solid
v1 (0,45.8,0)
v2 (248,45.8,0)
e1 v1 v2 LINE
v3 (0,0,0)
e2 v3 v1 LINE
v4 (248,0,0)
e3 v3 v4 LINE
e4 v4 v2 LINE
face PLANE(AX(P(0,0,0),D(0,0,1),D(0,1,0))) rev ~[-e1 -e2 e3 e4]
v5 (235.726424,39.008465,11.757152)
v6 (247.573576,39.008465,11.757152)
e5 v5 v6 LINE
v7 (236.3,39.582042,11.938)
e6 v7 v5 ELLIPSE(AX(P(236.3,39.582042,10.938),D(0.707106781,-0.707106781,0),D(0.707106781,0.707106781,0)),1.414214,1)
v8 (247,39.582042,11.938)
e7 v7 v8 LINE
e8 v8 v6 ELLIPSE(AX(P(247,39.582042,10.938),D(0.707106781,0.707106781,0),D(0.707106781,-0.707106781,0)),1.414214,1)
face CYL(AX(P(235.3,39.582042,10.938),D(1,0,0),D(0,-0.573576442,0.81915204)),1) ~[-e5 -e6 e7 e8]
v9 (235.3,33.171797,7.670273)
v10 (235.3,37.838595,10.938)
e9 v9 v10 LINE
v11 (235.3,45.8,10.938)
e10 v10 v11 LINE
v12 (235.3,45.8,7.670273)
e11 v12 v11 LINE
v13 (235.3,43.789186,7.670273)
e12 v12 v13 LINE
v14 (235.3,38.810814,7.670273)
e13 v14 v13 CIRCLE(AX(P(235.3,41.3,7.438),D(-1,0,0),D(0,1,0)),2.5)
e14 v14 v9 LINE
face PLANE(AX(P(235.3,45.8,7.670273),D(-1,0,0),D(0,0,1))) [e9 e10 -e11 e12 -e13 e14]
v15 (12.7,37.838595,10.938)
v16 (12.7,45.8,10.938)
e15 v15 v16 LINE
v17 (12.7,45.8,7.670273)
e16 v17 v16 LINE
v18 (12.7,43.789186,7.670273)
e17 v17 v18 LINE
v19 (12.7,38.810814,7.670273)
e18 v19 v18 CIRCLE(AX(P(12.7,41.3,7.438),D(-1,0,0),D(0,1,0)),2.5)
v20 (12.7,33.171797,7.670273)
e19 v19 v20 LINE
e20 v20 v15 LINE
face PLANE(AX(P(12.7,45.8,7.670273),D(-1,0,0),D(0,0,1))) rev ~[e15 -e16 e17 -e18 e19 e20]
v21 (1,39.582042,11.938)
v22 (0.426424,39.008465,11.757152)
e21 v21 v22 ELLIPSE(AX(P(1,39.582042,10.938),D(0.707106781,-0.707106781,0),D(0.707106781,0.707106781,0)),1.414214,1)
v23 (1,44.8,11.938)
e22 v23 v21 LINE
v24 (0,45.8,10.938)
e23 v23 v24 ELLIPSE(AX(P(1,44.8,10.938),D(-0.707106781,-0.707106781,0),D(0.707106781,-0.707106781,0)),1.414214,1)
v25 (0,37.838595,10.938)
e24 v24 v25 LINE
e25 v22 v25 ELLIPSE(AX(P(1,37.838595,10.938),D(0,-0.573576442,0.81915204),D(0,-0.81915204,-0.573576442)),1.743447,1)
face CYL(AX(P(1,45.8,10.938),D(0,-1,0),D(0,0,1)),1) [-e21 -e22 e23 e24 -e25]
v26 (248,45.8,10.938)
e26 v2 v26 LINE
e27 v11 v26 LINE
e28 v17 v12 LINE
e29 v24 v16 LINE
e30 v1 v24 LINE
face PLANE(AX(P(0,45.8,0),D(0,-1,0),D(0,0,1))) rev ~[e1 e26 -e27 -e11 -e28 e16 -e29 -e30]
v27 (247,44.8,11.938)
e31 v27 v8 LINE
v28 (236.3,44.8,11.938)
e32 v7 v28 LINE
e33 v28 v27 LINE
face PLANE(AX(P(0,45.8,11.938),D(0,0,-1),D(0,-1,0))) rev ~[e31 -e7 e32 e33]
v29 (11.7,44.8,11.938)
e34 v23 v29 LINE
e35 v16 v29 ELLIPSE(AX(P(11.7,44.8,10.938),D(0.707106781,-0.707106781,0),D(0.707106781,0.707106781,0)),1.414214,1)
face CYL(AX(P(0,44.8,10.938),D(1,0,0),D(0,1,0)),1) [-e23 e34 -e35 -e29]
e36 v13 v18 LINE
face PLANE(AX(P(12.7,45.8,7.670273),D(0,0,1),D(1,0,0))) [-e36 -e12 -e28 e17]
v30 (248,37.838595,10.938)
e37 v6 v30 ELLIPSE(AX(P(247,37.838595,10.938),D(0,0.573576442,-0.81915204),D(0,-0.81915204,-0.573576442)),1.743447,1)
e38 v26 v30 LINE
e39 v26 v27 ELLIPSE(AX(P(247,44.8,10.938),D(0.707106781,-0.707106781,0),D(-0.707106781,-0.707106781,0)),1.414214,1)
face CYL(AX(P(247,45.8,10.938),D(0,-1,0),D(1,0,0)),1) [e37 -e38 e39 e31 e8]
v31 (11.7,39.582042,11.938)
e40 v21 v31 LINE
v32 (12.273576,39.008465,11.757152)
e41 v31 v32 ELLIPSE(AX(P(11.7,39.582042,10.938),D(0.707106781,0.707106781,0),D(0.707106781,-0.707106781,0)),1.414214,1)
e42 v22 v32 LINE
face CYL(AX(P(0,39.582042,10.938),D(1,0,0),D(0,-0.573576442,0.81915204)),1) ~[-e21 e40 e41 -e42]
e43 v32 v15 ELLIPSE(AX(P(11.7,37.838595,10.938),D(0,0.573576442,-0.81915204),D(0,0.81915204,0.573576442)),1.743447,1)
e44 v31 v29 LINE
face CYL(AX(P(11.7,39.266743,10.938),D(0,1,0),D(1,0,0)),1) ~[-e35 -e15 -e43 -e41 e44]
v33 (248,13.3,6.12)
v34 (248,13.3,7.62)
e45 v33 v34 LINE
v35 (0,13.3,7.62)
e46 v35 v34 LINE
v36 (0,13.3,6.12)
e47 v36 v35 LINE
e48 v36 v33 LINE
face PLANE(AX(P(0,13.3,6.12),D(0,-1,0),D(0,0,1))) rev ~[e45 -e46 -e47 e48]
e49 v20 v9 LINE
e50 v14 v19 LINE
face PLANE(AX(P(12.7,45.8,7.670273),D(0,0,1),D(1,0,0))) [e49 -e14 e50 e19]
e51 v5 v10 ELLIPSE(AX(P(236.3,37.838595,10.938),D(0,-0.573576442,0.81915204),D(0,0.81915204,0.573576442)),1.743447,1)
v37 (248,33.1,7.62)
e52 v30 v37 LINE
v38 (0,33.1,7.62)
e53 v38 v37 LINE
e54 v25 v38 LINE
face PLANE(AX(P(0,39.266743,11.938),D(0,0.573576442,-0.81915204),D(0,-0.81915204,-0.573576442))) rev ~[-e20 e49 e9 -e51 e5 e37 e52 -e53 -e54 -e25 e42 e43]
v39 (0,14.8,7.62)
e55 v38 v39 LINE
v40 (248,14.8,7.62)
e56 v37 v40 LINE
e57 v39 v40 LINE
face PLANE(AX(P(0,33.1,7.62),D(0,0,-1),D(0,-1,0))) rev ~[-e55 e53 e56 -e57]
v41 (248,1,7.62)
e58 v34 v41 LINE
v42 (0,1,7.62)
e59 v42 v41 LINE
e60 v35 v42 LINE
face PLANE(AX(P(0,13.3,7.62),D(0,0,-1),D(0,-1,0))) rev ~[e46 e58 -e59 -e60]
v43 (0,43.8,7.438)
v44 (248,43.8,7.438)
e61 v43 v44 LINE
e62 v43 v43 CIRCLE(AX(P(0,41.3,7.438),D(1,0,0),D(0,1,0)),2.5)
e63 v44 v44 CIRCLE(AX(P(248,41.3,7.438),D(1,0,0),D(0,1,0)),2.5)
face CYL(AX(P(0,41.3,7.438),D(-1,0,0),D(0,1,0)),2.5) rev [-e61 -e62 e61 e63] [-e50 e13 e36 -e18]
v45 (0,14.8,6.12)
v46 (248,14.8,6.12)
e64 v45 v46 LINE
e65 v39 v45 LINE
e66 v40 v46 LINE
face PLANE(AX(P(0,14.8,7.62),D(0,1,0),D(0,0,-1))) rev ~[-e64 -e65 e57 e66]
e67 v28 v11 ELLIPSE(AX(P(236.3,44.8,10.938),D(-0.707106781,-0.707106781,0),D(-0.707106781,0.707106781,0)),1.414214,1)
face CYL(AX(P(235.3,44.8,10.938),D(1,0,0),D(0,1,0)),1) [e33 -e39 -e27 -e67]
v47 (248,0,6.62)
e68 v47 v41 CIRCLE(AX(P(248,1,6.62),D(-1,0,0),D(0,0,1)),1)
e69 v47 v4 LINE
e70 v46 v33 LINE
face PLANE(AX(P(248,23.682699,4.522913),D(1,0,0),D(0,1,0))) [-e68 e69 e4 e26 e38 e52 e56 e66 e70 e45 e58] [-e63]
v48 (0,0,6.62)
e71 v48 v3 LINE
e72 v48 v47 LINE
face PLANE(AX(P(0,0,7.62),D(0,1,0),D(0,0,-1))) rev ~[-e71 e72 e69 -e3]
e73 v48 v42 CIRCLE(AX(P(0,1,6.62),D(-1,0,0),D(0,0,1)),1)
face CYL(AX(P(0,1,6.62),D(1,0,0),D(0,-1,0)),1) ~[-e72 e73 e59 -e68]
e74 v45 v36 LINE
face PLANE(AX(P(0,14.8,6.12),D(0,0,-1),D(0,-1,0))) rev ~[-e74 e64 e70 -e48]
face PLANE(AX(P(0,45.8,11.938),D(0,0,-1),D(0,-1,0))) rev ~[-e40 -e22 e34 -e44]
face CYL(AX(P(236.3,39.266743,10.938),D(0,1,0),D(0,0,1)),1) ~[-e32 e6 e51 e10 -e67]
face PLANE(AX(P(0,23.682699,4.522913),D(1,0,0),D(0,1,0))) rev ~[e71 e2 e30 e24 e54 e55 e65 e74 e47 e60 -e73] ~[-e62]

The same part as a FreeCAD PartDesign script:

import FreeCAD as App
import Part
import Sketcher

V = App.Vector
Q = App.Units.Quantity


def edges_at(feature, points):
    """Names of the edges that pass closest to the given points."""
    edges = feature.Shape.Edges
    near = lambda p: min(range(len(edges)), key=lambda i: edges[i].distToShape(Part.Vertex(*p))[0])
    return sorted({f"Edge{near(p) + 1}" for p in points})

doc = App.newDocument("Part")
body = doc.addObject("PartDesign::Body", "Body")

sketch1 = doc.addObject("Sketcher::SketchObject", "Sketch")
body.addObject(sketch1)
sketch1.AttachmentSupport = (doc.YZ_Plane, [""])
sketch1.MapMode = "FlatFace"
sketch1.addGeometry(Part.LineSegment(V(0, 0, 0), V(45.8, 0, 0)), False)
sketch1.addGeometry(Part.LineSegment(V(45.8, 0, 0), V(45.8, 11.9, 0)), False)
sketch1.addGeometry(Part.LineSegment(V(45.8, 11.9, 0), V(39.3, 11.9, 0)), False)
sketch1.addGeometry(Part.LineSegment(V(39.3, 11.9, 0), V(33.1, 7.6, 0)), False)
sketch1.addGeometry(Part.LineSegment(V(33.1, 7.6, 0), V(14.8, 7.6, 0)), False)
sketch1.addGeometry(Part.LineSegment(V(14.8, 7.6, 0), V(14.8, 6.1, 0)), False)
sketch1.addGeometry(Part.LineSegment(V(14.8, 6.1, 0), V(13.3, 6.1, 0)), False)
sketch1.addGeometry(Part.LineSegment(V(13.3, 6.1, 0), V(13.3, 7.6, 0)), False)
sketch1.addGeometry(Part.LineSegment(V(13.3, 7.6, 0), V(0, 7.6, 0)), False)
sketch1.addGeometry(Part.LineSegment(V(0, 7.6, 0), V(0, 0, 0)), False)
sketch1.addGeometry(Part.Circle(V(41.3, 7.4, 0), V(0, 0, 1), 2.5), False)
sketch1.addConstraint(Sketcher.Constraint("Coincident", 0, 2, 1, 1))
sketch1.addConstraint(Sketcher.Constraint("Coincident", 1, 2, 2, 1))
sketch1.addConstraint(Sketcher.Constraint("Coincident", 2, 2, 3, 1))
sketch1.addConstraint(Sketcher.Constraint("Coincident", 3, 2, 4, 1))
sketch1.addConstraint(Sketcher.Constraint("Coincident", 4, 2, 5, 1))
sketch1.addConstraint(Sketcher.Constraint("Coincident", 5, 2, 6, 1))
sketch1.addConstraint(Sketcher.Constraint("Coincident", 6, 2, 7, 1))
sketch1.addConstraint(Sketcher.Constraint("Coincident", 7, 2, 8, 1))
sketch1.addConstraint(Sketcher.Constraint("Coincident", 8, 2, 9, 1))
sketch1.addConstraint(Sketcher.Constraint("Coincident", 9, 2, 0, 1))
sketch1.addConstraint(Sketcher.Constraint("Horizontal", 0))
sketch1.addConstraint(Sketcher.Constraint("Vertical", 1))
sketch1.addConstraint(Sketcher.Constraint("Horizontal", 2))
sketch1.addConstraint(Sketcher.Constraint("Horizontal", 4))
sketch1.addConstraint(Sketcher.Constraint("Vertical", 5))
sketch1.addConstraint(Sketcher.Constraint("Horizontal", 6))
sketch1.addConstraint(Sketcher.Constraint("Vertical", 7))
sketch1.addConstraint(Sketcher.Constraint("Horizontal", 8))
sketch1.addConstraint(Sketcher.Constraint("Vertical", 9))
sketch1.addConstraint(Sketcher.Constraint("Coincident", 9, 2, -1, 1))
sketch1.addConstraint(Sketcher.Constraint("Horizontal", 4, 2, 7, 2))
sketch1.addConstraint(Sketcher.Constraint("Equal", 6, 5))
sketch1.addConstraint(Sketcher.Constraint("Diameter", 10, Q("5 mm")))
sketch1.addConstraint(Sketcher.Constraint("Angle", 3, Q("-145 deg")))
sketch1.addConstraint(Sketcher.Constraint("DistanceX", 0, 1, 0, 2, Q("45.8 mm")))
sketch1.addConstraint(Sketcher.Constraint("DistanceX", 4, 2, 4, 1, Q("18.3 mm")))
sketch1.addConstraint(Sketcher.Constraint("DistanceX", 6, 2, 6, 1, Q("1.5 mm")))
sketch1.addConstraint(Sketcher.Constraint("DistanceX", 8, 2, 8, 1, Q("13.3 mm")))
sketch1.addConstraint(Sketcher.Constraint("DistanceX", 6, 2, 10, 3, Q("28 mm")))
sketch1.addConstraint(Sketcher.Constraint("DistanceY", 9, 2, 9, 1, Q("7.62 mm")))
sketch1.addConstraint(Sketcher.Constraint("DistanceY", 10, 3, 1, 2, Q("4.5 mm")))
sketch1.addConstraint(Sketcher.Constraint("DistanceY", 1, 1, 1, 2, Q("11.938 mm")))
pad1 = doc.addObject("PartDesign::Pad", "Pad")
body.addObject(pad1)
pad1.Profile = sketch1
pad1.Length = 248

sketch2 = doc.addObject("Sketcher::SketchObject", "Sketch001")
body.addObject(sketch2)
sketch2.AttachmentSupport = (doc.XZ_Plane, [""])
sketch2.MapMode = "FlatFace"
sketch2.AttachmentOffset = App.Placement(V(0, 0, -45.8), App.Rotation())
sketch2.addGeometry(Part.LineSegment(V(235.3, 7.7, 0), V(12.7, 7.7, 0)), False)
sketch2.addGeometry(Part.LineSegment(V(12.7, 7.7, 0), V(12.7, 12.3, 0)), False)
sketch2.addGeometry(Part.LineSegment(V(12.7, 12.3, 0), V(235.3, 12.3, 0)), False)
sketch2.addGeometry(Part.LineSegment(V(235.3, 12.3, 0), V(235.3, 7.7, 0)), False)
sketch2.addConstraint(Sketcher.Constraint("Coincident", 0, 2, 1, 1))
sketch2.addConstraint(Sketcher.Constraint("Coincident", 1, 2, 2, 1))
sketch2.addConstraint(Sketcher.Constraint("Coincident", 2, 2, 3, 1))
sketch2.addConstraint(Sketcher.Constraint("Coincident", 3, 2, 0, 1))
sketch2.addConstraint(Sketcher.Constraint("Horizontal", 0))
sketch2.addConstraint(Sketcher.Constraint("Vertical", 1))
sketch2.addConstraint(Sketcher.Constraint("Horizontal", 2))
sketch2.addConstraint(Sketcher.Constraint("Vertical", 3))
sketch2.addConstraint(Sketcher.Constraint("DistanceX", 0, 2, 0, 1, Q("222.6 mm")))
sketch2.addConstraint(Sketcher.Constraint("DistanceX", -1, 1, 0, 2, Q("12.7 mm")))
sketch2.addConstraint(Sketcher.Constraint("DistanceY", 1, 1, 1, 2, Q("4.639466 mm")))
sketch2.addConstraint(Sketcher.Constraint("DistanceY", -1, 1, 1, 2, Q("12.309739 mm")))
pocket1 = doc.addObject("PartDesign::Pocket", "Pocket")
body.addObject(pocket1)
pocket1.Profile = sketch2
pocket1.Length = 25.4
pocket1.Reversed = True
doc.recompute()

fillet = doc.addObject("PartDesign::Fillet", "Fillet")
body.addObject(fillet)
fillet.Base = (pocket1, edges_at(pocket1, [(124, 0, 7.62)]))
fillet.Radius = 1
doc.recompute()

fillet2 = doc.addObject("PartDesign::Fillet", "Fillet001")
body.addObject(fillet2)
fillet2.Base = (fillet, edges_at(fillet, [
    (235.3, 42.533, 11.938),
    (241.65, 39.267, 11.938),
    (248, 42.533, 11.938),
    (241.65, 45.8, 11.938),
]))
fillet2.Radius = 1
doc.recompute()

fillet3 = doc.addObject("PartDesign::Fillet", "Fillet002")
body.addObject(fillet3)
fillet3.Base = (fillet2, edges_at(fillet2, [
    (0, 42.533, 11.938),
    (6.35, 39.267, 11.938),
    (12.7, 42.533, 11.938),
    (6.35, 45.8, 11.938),
]))
fillet3.Radius = 1

doc.recompute()
